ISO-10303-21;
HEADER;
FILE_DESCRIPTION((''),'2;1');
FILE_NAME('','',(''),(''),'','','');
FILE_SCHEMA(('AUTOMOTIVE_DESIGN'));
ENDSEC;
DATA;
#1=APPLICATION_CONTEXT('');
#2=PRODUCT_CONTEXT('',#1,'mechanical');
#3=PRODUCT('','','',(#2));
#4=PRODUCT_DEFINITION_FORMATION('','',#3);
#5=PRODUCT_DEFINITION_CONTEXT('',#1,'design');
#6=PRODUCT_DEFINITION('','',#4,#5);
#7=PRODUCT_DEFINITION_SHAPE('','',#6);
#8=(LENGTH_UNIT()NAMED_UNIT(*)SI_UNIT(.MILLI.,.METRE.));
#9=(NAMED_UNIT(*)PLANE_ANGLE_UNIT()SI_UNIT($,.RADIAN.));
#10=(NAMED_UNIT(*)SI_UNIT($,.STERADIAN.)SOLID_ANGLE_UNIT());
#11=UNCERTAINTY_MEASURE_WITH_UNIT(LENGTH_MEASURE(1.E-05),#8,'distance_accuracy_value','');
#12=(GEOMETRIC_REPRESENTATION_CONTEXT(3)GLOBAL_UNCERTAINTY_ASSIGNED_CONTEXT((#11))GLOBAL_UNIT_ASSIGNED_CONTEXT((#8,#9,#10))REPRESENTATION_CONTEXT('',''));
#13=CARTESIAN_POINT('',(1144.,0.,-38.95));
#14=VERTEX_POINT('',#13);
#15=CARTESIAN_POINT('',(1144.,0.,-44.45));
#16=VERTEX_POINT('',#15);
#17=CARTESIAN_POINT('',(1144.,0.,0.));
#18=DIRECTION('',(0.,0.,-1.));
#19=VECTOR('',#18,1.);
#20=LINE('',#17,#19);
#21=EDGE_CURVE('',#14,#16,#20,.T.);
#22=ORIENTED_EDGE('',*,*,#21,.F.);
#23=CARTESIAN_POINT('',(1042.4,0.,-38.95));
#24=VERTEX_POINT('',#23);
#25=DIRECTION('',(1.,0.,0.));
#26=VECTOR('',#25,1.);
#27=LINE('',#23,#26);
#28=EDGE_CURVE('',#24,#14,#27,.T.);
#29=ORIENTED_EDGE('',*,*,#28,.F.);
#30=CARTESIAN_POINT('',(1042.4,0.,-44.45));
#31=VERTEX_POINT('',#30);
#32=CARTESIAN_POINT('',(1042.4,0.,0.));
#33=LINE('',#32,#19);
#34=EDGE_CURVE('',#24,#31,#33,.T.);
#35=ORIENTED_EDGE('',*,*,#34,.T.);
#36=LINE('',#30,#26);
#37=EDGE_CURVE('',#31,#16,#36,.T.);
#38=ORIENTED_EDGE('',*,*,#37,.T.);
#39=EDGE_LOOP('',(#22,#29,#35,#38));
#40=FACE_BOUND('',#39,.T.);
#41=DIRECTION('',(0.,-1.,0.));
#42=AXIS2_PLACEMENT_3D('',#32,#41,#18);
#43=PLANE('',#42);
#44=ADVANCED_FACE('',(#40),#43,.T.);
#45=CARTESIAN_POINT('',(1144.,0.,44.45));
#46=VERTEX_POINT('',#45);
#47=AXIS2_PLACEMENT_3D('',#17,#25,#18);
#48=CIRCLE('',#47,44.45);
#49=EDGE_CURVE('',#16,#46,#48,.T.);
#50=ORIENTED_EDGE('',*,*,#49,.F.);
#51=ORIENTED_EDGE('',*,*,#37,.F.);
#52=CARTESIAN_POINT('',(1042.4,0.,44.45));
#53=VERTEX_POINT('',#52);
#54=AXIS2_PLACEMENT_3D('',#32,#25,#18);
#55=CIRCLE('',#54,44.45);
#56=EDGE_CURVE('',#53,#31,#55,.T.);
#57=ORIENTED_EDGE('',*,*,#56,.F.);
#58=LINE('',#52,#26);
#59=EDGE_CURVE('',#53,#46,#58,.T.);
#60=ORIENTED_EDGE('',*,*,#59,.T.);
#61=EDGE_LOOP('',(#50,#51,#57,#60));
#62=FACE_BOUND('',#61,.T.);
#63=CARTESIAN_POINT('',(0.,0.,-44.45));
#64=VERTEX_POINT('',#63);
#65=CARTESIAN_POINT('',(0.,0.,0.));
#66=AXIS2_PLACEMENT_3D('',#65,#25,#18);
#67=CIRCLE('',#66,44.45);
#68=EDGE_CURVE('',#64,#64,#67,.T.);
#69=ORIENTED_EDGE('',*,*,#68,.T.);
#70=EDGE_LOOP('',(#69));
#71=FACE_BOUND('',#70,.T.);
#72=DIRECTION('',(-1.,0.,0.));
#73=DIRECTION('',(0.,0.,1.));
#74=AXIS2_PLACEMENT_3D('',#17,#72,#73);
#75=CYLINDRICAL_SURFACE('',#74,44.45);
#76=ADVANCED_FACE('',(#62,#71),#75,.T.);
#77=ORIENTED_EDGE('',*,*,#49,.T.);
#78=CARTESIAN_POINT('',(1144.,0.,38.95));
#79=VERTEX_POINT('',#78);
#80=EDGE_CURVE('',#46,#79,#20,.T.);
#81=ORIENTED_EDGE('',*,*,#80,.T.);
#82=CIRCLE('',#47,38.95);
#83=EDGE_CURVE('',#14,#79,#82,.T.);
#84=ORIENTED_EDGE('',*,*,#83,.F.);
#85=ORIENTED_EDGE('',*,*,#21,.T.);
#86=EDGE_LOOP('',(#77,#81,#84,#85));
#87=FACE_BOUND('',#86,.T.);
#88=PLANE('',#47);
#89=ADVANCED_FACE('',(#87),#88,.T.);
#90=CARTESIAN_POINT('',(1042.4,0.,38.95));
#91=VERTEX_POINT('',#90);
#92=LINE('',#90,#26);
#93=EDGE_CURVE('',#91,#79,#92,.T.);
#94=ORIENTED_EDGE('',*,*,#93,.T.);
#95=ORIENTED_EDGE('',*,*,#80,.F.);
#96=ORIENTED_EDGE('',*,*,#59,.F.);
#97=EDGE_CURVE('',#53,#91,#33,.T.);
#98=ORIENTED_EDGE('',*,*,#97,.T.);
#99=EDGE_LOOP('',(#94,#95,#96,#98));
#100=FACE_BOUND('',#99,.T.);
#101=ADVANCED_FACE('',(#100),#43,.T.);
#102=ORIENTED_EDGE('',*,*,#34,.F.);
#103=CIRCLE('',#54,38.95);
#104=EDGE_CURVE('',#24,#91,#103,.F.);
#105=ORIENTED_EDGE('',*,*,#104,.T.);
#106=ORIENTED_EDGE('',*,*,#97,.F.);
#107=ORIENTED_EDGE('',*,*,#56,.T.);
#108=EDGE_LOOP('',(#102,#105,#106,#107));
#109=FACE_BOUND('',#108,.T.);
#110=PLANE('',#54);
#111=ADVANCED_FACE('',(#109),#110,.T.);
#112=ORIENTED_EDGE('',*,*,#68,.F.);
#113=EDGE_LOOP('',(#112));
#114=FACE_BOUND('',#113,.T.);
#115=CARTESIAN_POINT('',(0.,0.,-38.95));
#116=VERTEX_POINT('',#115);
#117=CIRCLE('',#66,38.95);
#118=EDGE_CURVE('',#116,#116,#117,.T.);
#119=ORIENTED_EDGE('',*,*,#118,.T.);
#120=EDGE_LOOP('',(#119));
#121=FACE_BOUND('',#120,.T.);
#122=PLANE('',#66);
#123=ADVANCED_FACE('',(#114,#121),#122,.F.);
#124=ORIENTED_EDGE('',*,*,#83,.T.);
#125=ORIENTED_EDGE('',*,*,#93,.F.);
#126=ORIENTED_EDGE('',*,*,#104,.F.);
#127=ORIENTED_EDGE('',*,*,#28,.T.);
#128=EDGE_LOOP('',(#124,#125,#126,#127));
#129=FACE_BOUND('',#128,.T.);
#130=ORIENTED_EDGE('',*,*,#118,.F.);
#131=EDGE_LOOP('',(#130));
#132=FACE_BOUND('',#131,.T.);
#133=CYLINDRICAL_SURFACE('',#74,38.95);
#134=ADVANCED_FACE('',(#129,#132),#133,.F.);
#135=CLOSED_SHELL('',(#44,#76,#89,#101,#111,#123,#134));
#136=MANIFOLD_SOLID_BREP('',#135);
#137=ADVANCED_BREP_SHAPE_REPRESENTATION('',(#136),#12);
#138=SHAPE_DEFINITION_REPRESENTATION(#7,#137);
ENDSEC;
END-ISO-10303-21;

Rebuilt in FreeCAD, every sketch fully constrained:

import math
import FreeCAD as App
import Part
import Sketcher

V = App.Vector
Q = App.Units.Quantity

doc = App.newDocument("Part")
params = doc.addObject("Spreadsheet::Sheet", "Params")
for row, (alias, value) in enumerate([
    ("sketch1_diameter", "88.9 mm"),
    ("sketch1_diameter2", "77.9 mm"),
    ("pad1_length", "1144 mm"),
    ("sketch2_radius", "44.45 mm"),
    ("sketch2_radius2", "38.95 mm"),
    ("pocket1_length", "101.6 mm"),
], start=1):
    params.set(f"A{row}", alias)
    params.set(f"B{row}", "=" + value)
    params.setAlias(f"B{row}", alias)

body = doc.addObject("PartDesign::Body", "Body")

# Sketch on YZ plane
sketch1 = doc.addObject("Sketcher::SketchObject", "Sketch")
body.addObject(sketch1)
sketch1.AttachmentSupport = (doc.YZ_Plane, [""])
sketch1.MapMode = "FlatFace"
sketch1.addGeometry(Part.Circle(V(0, 0, 0), V(0, 0, 1), 44), False)
sketch1.addGeometry(Part.Circle(V(0, 0, 0), V(0, 0, 1), 39), False)
sketch1.addConstraint(Sketcher.Constraint("Coincident", 0, 3, -1, 1))
sketch1.addConstraint(Sketcher.Constraint("Coincident", 1, 3, -1, 1))
sketch1.addConstraint(Sketcher.Constraint("Diameter", 0, Q("88.9 mm")))
sketch1.addConstraint(Sketcher.Constraint("Diameter", 1, Q("77.9 mm")))
sketch1.setExpression("Constraints[2]", "Params.sketch1_diameter")
sketch1.setExpression("Constraints[3]", "Params.sketch1_diameter2")
pad1 = doc.addObject("PartDesign::Pad", "Pad")
body.addObject(pad1)
pad1.Profile = sketch1
pad1.setExpression("Length", "Params.pad1_length")

# Sketch on YZ plane
sketch2 = doc.addObject("Sketcher::SketchObject", "Sketch001")
body.addObject(sketch2)
sketch2.AttachmentSupport = (doc.YZ_Plane, [""])
sketch2.MapMode = "FlatFace"
sketch2.AttachmentOffset = App.Placement(V(0, 0, 1042.4), App.Rotation())
sketch2.addGeometry(Part.LineSegment(V(0, 39, 0), V(0, 44, 0)), False)
sketch2.addGeometry(Part.ArcOfCircle(Part.Circle(V(0, 0, 0), V(0, 0, 1), 44), math.radians(90), math.radians(270)), False)
sketch2.addGeometry(Part.LineSegment(V(0, -44, 0), V(0, -39, 0)), False)
sketch2.addGeometry(Part.ArcOfCircle(Part.Circle(V(0, 0, 0), V(0, 0, 1), 39), math.radians(90), math.radians(270)), False)
sketch2.addConstraint(Sketcher.Constraint("Coincident", 0, 2, 1, 1))
sketch2.addConstraint(Sketcher.Constraint("Coincident", 1, 2, 2, 1))
sketch2.addConstraint(Sketcher.Constraint("Coincident", 2, 2, 3, 2))
sketch2.addConstraint(Sketcher.Constraint("Coincident", 3, 1, 0, 1))
sketch2.addConstraint(Sketcher.Constraint("Vertical", 0))
sketch2.addConstraint(Sketcher.Constraint("Vertical", 2))
sketch2.addConstraint(Sketcher.Constraint("Coincident", 1, 3, -1, 1))
sketch2.addConstraint(Sketcher.Constraint("Coincident", 3, 3, -1, 1))
sketch2.addConstraint(Sketcher.Constraint("PointOnObject", 0, 2, -2))
sketch2.addConstraint(Sketcher.Constraint("PointOnObject", 1, 2, -2))
sketch2.addConstraint(Sketcher.Constraint("Radius", 1, Q("44.45 mm")))
sketch2.addConstraint(Sketcher.Constraint("Radius", 3, Q("38.95 mm")))
sketch2.setExpression("Constraints[10]", "Params.sketch2_radius")
sketch2.setExpression("Constraints[11]", "Params.sketch2_radius2")
pocket1 = doc.addObject("PartDesign::Pocket", "Pocket")
body.addObject(pocket1)
pocket1.Profile = sketch2
pocket1.setExpression("Length", "Params.pocket1_length")
pocket1.Reversed = True

doc.recompute()
